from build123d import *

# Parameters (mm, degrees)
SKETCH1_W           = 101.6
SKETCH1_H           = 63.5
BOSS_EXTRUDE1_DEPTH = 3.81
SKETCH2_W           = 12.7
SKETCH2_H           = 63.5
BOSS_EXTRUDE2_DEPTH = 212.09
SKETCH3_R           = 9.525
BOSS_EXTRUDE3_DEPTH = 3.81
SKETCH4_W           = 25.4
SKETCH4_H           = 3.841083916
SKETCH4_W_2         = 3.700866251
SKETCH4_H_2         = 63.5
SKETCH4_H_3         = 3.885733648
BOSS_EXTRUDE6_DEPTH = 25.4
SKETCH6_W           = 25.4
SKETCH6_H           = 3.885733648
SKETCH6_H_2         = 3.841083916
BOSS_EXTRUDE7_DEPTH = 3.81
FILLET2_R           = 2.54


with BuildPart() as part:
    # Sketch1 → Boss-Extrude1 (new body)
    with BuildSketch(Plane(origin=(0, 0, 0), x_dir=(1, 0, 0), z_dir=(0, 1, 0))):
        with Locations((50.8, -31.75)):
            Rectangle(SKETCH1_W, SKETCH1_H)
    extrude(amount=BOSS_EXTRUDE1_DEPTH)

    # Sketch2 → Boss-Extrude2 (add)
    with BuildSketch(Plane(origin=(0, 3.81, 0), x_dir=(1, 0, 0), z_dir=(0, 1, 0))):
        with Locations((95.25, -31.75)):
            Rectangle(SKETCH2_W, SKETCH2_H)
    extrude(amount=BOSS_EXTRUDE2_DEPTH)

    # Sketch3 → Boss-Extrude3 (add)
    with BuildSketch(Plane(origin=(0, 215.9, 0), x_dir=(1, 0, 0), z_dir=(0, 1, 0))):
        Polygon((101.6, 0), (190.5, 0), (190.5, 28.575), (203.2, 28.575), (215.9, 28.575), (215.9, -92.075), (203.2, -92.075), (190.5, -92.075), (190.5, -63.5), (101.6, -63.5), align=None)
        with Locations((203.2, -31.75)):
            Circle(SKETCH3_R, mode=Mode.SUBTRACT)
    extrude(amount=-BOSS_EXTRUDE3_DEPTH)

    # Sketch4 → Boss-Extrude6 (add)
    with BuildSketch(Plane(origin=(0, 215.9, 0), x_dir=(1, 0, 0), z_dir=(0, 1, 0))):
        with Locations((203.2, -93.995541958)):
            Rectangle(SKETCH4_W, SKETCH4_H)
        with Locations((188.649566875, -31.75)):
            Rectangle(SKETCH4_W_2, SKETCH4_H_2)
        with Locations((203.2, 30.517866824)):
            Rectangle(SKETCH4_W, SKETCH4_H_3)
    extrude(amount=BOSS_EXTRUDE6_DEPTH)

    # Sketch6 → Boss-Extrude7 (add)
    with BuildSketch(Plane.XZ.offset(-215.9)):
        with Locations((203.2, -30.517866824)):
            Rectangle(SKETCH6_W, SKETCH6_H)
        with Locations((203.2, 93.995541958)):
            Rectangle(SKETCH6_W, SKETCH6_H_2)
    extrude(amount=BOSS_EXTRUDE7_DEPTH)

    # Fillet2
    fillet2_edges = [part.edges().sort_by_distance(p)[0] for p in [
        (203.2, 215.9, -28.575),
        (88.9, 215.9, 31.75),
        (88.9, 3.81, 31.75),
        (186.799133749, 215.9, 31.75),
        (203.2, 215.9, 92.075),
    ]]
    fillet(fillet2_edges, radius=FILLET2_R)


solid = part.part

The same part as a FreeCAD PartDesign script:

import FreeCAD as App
import Part
import Sketcher
Q = App.Units.Quantity


def edges_at(feature, points):
    """Names of the edges that pass closest to the given points."""
    edges = feature.Shape.Edges
    near = lambda p: min(range(len(edges)), key=lambda i: edges[i].distToShape(Part.Vertex(*p))[0])
    return sorted({f"Edge{near(p) + 1}" for p in points})


def add_polygon(sketch, points):
    """Adds a closed chain of lines whose ends are joined by coincident constraints."""
    first, n = sketch.GeometryCount, len(points)
    for a, b in zip(points, points[1:] + points[:1]):
        sketch.addGeometry(Part.LineSegment(App.Vector(*a, 0), App.Vector(*b, 0)), False)
    for i in range(n):
        sketch.addConstraint(Sketcher.Constraint("Coincident", first + i, 2, first + (i + 1) % n, 1))

doc = App.newDocument("Part")
body = doc.addObject("PartDesign::Body", "Body")
body.AllowCompound = True

sketch1 = body.newObject("Sketcher::SketchObject", "Sketch")
sketch1.AttachmentSupport = (doc.getObject("XZ_Plane"), [""])
sketch1.MapMode = "FlatFace"
add_polygon(sketch1, [(0, 0), (0, 64), (102, 64), (102, 0)])
sketch1.addConstraint([
    Sketcher.Constraint("Vertical", 0),
    Sketcher.Constraint("Horizontal", 1),
    Sketcher.Constraint("Vertical", 2),
    Sketcher.Constraint("Horizontal", 3),
    Sketcher.Constraint("Coincident", 3, 2, -1, 1),
    Sketcher.Constraint("DistanceX", 1, 1, 1, 2, Q("4 in")),
    Sketcher.Constraint("DistanceY", 0, 1, 0, 2, Q("2.5 in")),
])
pad1 = body.newObject("PartDesign::Pad", "Pad")
pad1.Profile = sketch1
pad1.Length = Q("0.15 in")
pad1.Reversed = True

sketch2 = body.newObject("Sketcher::SketchObject", "Sketch001")
sketch2.AttachmentSupport = (doc.getObject("XZ_Plane"), [""])
sketch2.MapMode = "FlatFace"
sketch2.AttachmentOffset = App.Placement(App.Vector(0, 0, -0.15 * 25.4), App.Rotation())
add_polygon(sketch2, [(89, 0), (89, 64), (102, 64), (102, 0)])
sketch2.addConstraint([
    Sketcher.Constraint("Vertical", 0),
    Sketcher.Constraint("Horizontal", 1),
    Sketcher.Constraint("Vertical", 2),
    Sketcher.Constraint("Horizontal", 3),
    Sketcher.Constraint("PointOnObject", 2, 2, -1),
    Sketcher.Constraint("DistanceX", 1, 1, 1, 2, Q("0.5 in")),
    Sketcher.Constraint("DistanceY", 0, 1, 0, 2, Q("2.5 in")),
    Sketcher.Constraint("DistanceX", -1, 1, 1, 2, Q("4 in")),
])
pad2 = body.newObject("PartDesign::Pad", "Pad001")
pad2.Profile = sketch2
pad2.Length = Q("8.35 in")
pad2.Reversed = True

sketch3 = body.newObject("Sketcher::SketchObject", "Sketch002")
sketch3.AttachmentSupport = (doc.getObject("XZ_Plane"), [""])
sketch3.MapMode = "FlatFace"
sketch3.AttachmentOffset = App.Placement(App.Vector(0, 0, -8.5 * 25.4), App.Rotation())
add_polygon(sketch3, [(190, 0), (102, 0), (102, 64), (190, 64), (190, 92), (216, 92), (216, -29), (190, -29)])
sketch3.addGeometry(Part.Circle(App.Vector(203, 32, 0), App.Vector(0, 0, 1), 10), False)
sketch3.addConstraint([
    Sketcher.Constraint("Horizontal", 0),
    Sketcher.Constraint("Vertical", 1),
    Sketcher.Constraint("Horizontal", 2),
    Sketcher.Constraint("Vertical", 3),
    Sketcher.Constraint("Horizontal", 4),
    Sketcher.Constraint("Vertical", 5),
    Sketcher.Constraint("Horizontal", 6),
    Sketcher.Constraint("Vertical", 7),
    Sketcher.Constraint("PointOnObject", 0, 2, -1),
    Sketcher.Constraint("Vertical", 3, 2, 6, 2),
    Sketcher.Constraint("Equal", 3, 7),
    Sketcher.Constraint("Diameter", 8, Q("0.75 in")),
    Sketcher.Constraint("DistanceX", 4, 1, 4, 2, Q("1 in")),
    Sketcher.Constraint("DistanceX", 0, 2, 0, 1, Q("3.5 in")),
    Sketcher.Constraint("DistanceY", 1, 1, 1, 2, Q("2.5 in")),
    Sketcher.Constraint("DistanceX", -1, 1, 8, 3, Q("8 in")),
    Sketcher.Constraint("DistanceX", -1, 1, 0, 2, Q("4 in")),
    Sketcher.Constraint("DistanceY", 5, 2, 5, 1, Q("4.75 in")),
    Sketcher.Constraint("DistanceY", -1, 1, 8, 3, Q("1.25 in")),
])
pad3 = body.newObject("PartDesign::Pad", "Pad002")
pad3.Profile = sketch3
pad3.Length = Q("0.15 in")

sketch4 = body.newObject("Sketcher::SketchObject", "Sketch003")
sketch4.AttachmentSupport = (doc.getObject("XZ_Plane"), [""])
sketch4.MapMode = "FlatFace"
sketch4.AttachmentOffset = App.Placement(App.Vector(0, 0, -8.5 * 25.4), App.Rotation())
add_polygon(sketch4, [(190.5, 92.1), (190.5, 95.9), (215.9, 95.9), (215.9, 92.1)])
add_polygon(sketch4, [(186.8, 0), (186.8, 63.5), (190.5, 63.5), (190.5, 0)])
add_polygon(sketch4, [(190.5, -32.5), (190.5, -28.6), (215.9, -28.6), (215.9, -32.5)])
sketch4.addConstraint([
    Sketcher.Constraint("Vertical", 0),
    Sketcher.Constraint("Horizontal", 1),
    Sketcher.Constraint("Vertical", 2),
    Sketcher.Constraint("Horizontal", 3),
    Sketcher.Constraint("Vertical", 4),
    Sketcher.Constraint("Horizontal", 5),
    Sketcher.Constraint("Vertical", 6),
    Sketcher.Constraint("Horizontal", 7),
    Sketcher.Constraint("Vertical", 8),
    Sketcher.Constraint("Horizontal", 9),
    Sketcher.Constraint("Vertical", 10),
    Sketcher.Constraint("Horizontal", 11),
    Sketcher.Constraint("PointOnObject", 6, 2, -1),
    Sketcher.Constraint("Vertical", 3, 2, 5, 2),
    Sketcher.Constraint("Vertical", 6, 2, 8, 2),
    Sketcher.Constraint("Vertical", 2, 2, 9, 2),
    Sketcher.Constraint("DistanceX", 1, 1, 1, 2, Q("1 in")),
    Sketcher.Constraint("DistanceY", 4, 1, 4, 2, Q("2.5 in")),
    Sketcher.Constraint("DistanceX", -1, 1, 0, 2, Q("7.5 in")),
    Sketcher.Constraint("DistanceY", 8, 2, 3, 2, Q("4.75 in")),
    Sketcher.Constraint("DistanceY", -1, 1, 2, 2, Q("3.625 in")),
    Sketcher.Constraint("DistanceX", 5, 1, 5, 2, 3.700866),
    Sketcher.Constraint("DistanceY", 0, 1, 0, 2, 3.841084),
    Sketcher.Constraint("DistanceY", 8, 1, 8, 2, 3.885734),
])
pad4 = body.newObject("PartDesign::Pad", "Pad003")
pad4.Profile = sketch4
pad4.Length = Q("1 in")
pad4.Reversed = True

sketch5 = body.newObject("Sketcher::SketchObject", "Sketch004")
sketch5.AttachmentSupport = (doc.getObject("XZ_Plane"), [""])
sketch5.MapMode = "FlatFace"
sketch5.AttachmentOffset = App.Placement(App.Vector(0, 0, -8.5 * 25.4), App.Rotation())
add_polygon(sketch5, [(190.5, -28.6), (190.5, -32.5), (215.9, -32.5), (215.9, -28.6)])
add_polygon(sketch5, [(190.5, 95.9), (190.5, 92.1), (215.9, 92.1), (215.9, 95.9)])
sketch5.addConstraint([
    Sketcher.Constraint("Vertical", 0),
    Sketcher.Constraint("Horizontal", 1),
    Sketcher.Constraint("Vertical", 2),
    Sketcher.Constraint("Horizontal", 3),
    Sketcher.Constraint("Vertical", 4),
    Sketcher.Constraint("Horizontal", 5),
    Sketcher.Constraint("Vertical", 6),
    Sketcher.Constraint("Horizontal", 7),
    Sketcher.Constraint("Vertical", 3, 2, 4, 2),
    Sketcher.Constraint("Vertical", 2, 2, 5, 2),
    Sketcher.Constraint("DistanceX", 1, 1, 1, 2, Q("1 in")),
    Sketcher.Constraint("DistanceX", -1, 1, 0, 2, Q("7.5 in")),
    Sketcher.Constraint("DistanceY", 3, 2, 4, 2, Q("4.75 in")),
    Sketcher.Constraint("DistanceY", 2, 2, -1, 1, Q("1.125 in")),
    Sketcher.Constraint("DistanceY", 0, 2, 0, 1, 3.885734),
    Sketcher.Constraint("DistanceY", 4, 2, 4, 1, 3.841084),
])
pad5 = body.newObject("PartDesign::Pad", "Pad004")
pad5.Profile = sketch5
pad5.Length = Q("0.15 in")
doc.recompute()

fillet = body.newObject("PartDesign::Fillet", "Fillet")
fillet.Base = (pad5, edges_at(pad5, [
    (203.2, 215.9, -28.575),
    (88.9, 215.9, 31.75),
    (88.9, 3.81, 31.75),
    (186.799, 215.9, 31.75),
    (203.2, 215.9, 92.075),
]))
fillet.Radius = Q("0.1 in")

doc.recompute()
